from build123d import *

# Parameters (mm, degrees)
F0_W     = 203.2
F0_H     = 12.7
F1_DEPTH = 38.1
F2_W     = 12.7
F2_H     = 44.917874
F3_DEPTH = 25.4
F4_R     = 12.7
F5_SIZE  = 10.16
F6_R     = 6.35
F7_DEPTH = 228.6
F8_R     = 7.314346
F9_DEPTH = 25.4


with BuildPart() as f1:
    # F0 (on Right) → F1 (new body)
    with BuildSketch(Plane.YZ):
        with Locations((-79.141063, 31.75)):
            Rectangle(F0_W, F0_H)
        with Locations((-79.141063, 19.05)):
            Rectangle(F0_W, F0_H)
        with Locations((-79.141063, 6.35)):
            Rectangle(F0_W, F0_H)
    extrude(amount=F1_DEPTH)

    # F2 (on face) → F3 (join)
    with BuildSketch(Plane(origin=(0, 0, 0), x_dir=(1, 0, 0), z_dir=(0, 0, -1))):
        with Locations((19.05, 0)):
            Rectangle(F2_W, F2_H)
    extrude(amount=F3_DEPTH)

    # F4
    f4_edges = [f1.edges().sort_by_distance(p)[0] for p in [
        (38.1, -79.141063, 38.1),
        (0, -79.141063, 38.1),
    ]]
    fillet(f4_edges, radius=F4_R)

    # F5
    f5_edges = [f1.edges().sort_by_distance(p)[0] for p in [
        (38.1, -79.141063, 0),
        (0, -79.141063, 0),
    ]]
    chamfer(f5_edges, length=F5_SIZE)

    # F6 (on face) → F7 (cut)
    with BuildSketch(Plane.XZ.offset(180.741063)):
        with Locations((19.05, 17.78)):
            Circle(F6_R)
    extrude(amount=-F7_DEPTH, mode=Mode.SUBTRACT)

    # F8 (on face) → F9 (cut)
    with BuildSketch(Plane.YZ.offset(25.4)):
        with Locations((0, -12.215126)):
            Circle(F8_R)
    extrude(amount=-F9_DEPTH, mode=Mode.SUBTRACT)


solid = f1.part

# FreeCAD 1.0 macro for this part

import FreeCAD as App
import Part
import Sketcher

V = App.Vector
Q = App.Units.Quantity


def edges_at(feature, points):
    """Names of the edges that pass closest to the given points."""
    edges = feature.Shape.Edges
    near = lambda p: min(range(len(edges)), key=lambda i: edges[i].distToShape(Part.Vertex(*p))[0])
    return sorted({f"Edge{near(p) + 1}" for p in points})

doc = App.newDocument("Part")
body = doc.addObject("PartDesign::Body", "Body")

# Sketch on YZ plane
sketch1 = body.newObject("Sketcher::SketchObject", "Sketch")
sketch1.AttachmentSupport = (doc.getObject("YZ_Plane"), [""])
sketch1.MapMode = "FlatFace"
sketch1.addGeometry([
    Part.LineSegment(V(-181, 38, 0), V(-181, 0, 0)),
    Part.LineSegment(V(-181, 0, 0), V(22, 0, 0)),
    Part.LineSegment(V(22, 0, 0), V(22, 38, 0)),
    Part.LineSegment(V(22, 38, 0), V(-181, 38, 0)),
], False)
sketch1.addConstraint([
    Sketcher.Constraint("Coincident", 0, 2, 1, 1),
    Sketcher.Constraint("Coincident", 1, 2, 2, 1),
    Sketcher.Constraint("Coincident", 2, 2, 3, 1),
    Sketcher.Constraint("Coincident", 3, 2, 0, 1),
    Sketcher.Constraint("Vertical", 0),
    Sketcher.Constraint("Horizontal", 1),
    Sketcher.Constraint("Vertical", 2),
    Sketcher.Constraint("Horizontal", 3),
    Sketcher.Constraint("PointOnObject", 0, 2, -1),
    Sketcher.Constraint("DistanceX", 1, 1, 1, 2, Q("8 in")),
    Sketcher.Constraint("DistanceY", 0, 2, 0, 1, Q("1.5 in")),
    Sketcher.Constraint("DistanceX", 0, 2, -1, 1, 180.741063),
])
pad1 = body.newObject("PartDesign::Pad", "Pad")
pad1.Profile = sketch1
pad1.Length = Q("1.5 in")

# Sketch on XY plane
sketch2 = body.newObject("Sketcher::SketchObject", "Sketch001")
sketch2.AttachmentSupport = (doc.getObject("XY_Plane"), [""])
sketch2.MapMode = "FlatFace"
sketch2.addGeometry([
    Part.LineSegment(V(13, -22, 0), V(13, 22, 0)),
    Part.LineSegment(V(13, 22, 0), V(25, 22, 0)),
    Part.LineSegment(V(25, 22, 0), V(25, -22, 0)),
    Part.LineSegment(V(25, -22, 0), V(13, -22, 0)),
], False)
sketch2.addConstraint([
    Sketcher.Constraint("Coincident", 0, 2, 1, 1),
    Sketcher.Constraint("Coincident", 1, 2, 2, 1),
    Sketcher.Constraint("Coincident", 2, 2, 3, 1),
    Sketcher.Constraint("Coincident", 3, 2, 0, 1),
    Sketcher.Constraint("Vertical", 0),
    Sketcher.Constraint("Horizontal", 1),
    Sketcher.Constraint("Vertical", 2),
    Sketcher.Constraint("Horizontal", 3),
    Sketcher.Constraint("DistanceX", 1, 1, 1, 2, Q("0.5 in")),
    Sketcher.Constraint("DistanceX", -1, 1, 1, 2, Q("1 in")),
    Sketcher.Constraint("DistanceY", 0, 1, 0, 2, 44.917874),
    Sketcher.Constraint("DistanceY", -1, 1, 0, 2, 22.458937),
])
pad2 = body.newObject("PartDesign::Pad", "Pad001")
pad2.Profile = sketch2
pad2.Length = Q("1 in")
pad2.Reversed = True
doc.recompute()

fillet = body.newObject("PartDesign::Fillet", "Fillet")
fillet.Base = (pad2, edges_at(pad2, [(38.1, -79.141, 38.1), (0, -79.141, 38.1)]))
fillet.Radius = Q("0.5 in")
doc.recompute()

chamfer = body.newObject("PartDesign::Chamfer", "Chamfer")
chamfer.Base = (fillet, edges_at(fillet, [(38.1, -79.141, 0), (0, -79.141, 0)]))
chamfer.Size = Q("0.4 in")

# Sketch on XZ plane
sketch3 = body.newObject("Sketcher::SketchObject", "Sketch002")
sketch3.AttachmentSupport = (doc.getObject("XZ_Plane"), [""])
sketch3.MapMode = "FlatFace"
sketch3.AttachmentOffset = App.Placement(V(0, 0, 180.741063), App.Rotation())
sketch3.addGeometry(Part.Circle(V(19, 18, 0), V(0, 0, 1), 6), False)
sketch3.addConstraint([
    Sketcher.Constraint("Diameter", 0, Q("0.5 in")),
    Sketcher.Constraint("DistanceY", -1, 1, 0, 3, Q("0.7 in")),
    Sketcher.Constraint("DistanceX", -1, 1, 0, 3, Q("0.75 in")),
])
pocket1 = body.newObject("PartDesign::Pocket", "Pocket")
pocket1.Profile = sketch3
pocket1.Length = Q("9 in")

# Sketch on YZ plane
sketch4 = body.newObject("Sketcher::SketchObject", "Sketch003")
sketch4.AttachmentSupport = (doc.getObject("YZ_Plane"), [""])
sketch4.MapMode = "FlatFace"
sketch4.AttachmentOffset = App.Placement(V(0, 0, 1 * 25.4), App.Rotation())
sketch4.addGeometry(Part.Circle(V(0, -12, 0), V(0, 0, 1), 7), False)
sketch4.addConstraint([
    Sketcher.Constraint("PointOnObject", 0, 3, -2),
    Sketcher.Constraint("Diameter", 0, 14.628692),
    Sketcher.Constraint("DistanceY", 0, 3, -1, 1, 12.215126),
])
pocket2 = body.newObject("PartDesign::Pocket", "Pocket001")
pocket2.Profile = sketch4
pocket2.Length = Q("1 in")

doc.recompute()
